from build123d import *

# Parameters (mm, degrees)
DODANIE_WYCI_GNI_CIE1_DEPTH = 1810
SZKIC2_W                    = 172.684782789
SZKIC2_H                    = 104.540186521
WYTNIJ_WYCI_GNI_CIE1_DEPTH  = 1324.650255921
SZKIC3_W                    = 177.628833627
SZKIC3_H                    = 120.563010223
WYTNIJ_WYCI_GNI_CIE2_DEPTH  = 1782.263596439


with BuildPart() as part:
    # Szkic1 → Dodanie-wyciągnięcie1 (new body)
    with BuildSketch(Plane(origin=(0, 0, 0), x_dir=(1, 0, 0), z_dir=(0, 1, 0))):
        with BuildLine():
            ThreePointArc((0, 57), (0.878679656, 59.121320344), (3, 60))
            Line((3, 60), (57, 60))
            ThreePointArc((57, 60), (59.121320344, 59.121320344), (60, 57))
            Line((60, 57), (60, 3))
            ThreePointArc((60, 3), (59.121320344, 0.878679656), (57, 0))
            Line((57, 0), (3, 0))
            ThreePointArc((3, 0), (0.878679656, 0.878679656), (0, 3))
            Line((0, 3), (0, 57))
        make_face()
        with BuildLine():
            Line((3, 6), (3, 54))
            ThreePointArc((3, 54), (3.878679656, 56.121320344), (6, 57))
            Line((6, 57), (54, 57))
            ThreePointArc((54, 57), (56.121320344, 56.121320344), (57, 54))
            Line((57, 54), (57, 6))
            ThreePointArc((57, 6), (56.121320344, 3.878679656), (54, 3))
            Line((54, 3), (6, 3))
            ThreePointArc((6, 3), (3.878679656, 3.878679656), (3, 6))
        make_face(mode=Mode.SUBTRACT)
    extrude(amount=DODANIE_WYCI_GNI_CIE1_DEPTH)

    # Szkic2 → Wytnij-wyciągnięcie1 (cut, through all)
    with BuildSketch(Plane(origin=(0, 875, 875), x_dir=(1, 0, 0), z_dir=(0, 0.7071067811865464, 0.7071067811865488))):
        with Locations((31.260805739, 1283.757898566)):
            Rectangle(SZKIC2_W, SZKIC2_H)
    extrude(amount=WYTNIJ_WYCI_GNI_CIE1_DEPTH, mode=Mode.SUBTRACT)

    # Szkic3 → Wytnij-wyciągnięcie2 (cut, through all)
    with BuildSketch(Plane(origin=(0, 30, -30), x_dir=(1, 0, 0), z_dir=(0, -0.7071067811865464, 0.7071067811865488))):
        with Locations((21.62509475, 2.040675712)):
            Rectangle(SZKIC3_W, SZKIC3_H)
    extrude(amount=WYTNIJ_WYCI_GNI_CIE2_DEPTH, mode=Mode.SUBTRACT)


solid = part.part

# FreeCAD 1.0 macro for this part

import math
import FreeCAD as App
import Part
import Sketcher


def add_polygon(sketch, points):
    """Adds a closed chain of lines whose ends are joined by coincident constraints."""
    first, n = sketch.GeometryCount, len(points)
    for a, b in zip(points, points[1:] + points[:1]):
        sketch.addGeometry(Part.LineSegment(App.Vector(*a, 0), App.Vector(*b, 0)), False)
    for i in range(n):
        sketch.addConstraint(Sketcher.Constraint("Coincident", first + i, 2, first + (i + 1) % n, 1))

doc = App.newDocument("Part")
body = doc.addObject("PartDesign::Body", "Body")

# Sketch on XZ plane
sketch1 = body.newObject("Sketcher::SketchObject", "Sketch")
sketch1.AttachmentSupport = (doc.getObject("XZ_Plane"), [""])
sketch1.MapMode = "FlatFace"
sketch1.addGeometry(Part.ArcOfCircle(Part.Circle(App.Vector(3, -57, 0), App.Vector(0, 0, 1), 3), math.radians(180), math.radians(270)), False)
sketch1.addGeometry(Part.LineSegment(App.Vector(0, -57, 0), App.Vector(0, -3, 0)), False)
sketch1.addGeometry(Part.ArcOfCircle(Part.Circle(App.Vector(3, -3, 0), App.Vector(0, 0, 1), 3), math.radians(90), math.radians(180)), False)
sketch1.addGeometry(Part.LineSegment(App.Vector(3, 0, 0), App.Vector(57, 0, 0)), False)
sketch1.addGeometry(Part.ArcOfCircle(Part.Circle(App.Vector(57, -3, 0), App.Vector(0, 0, 1), 3), math.radians(0), math.radians(90)), False)
sketch1.addGeometry(Part.LineSegment(App.Vector(60, -3, 0), App.Vector(60, -57, 0)), False)
sketch1.addGeometry(Part.ArcOfCircle(Part.Circle(App.Vector(57, -57, 0), App.Vector(0, 0, 1), 3), math.radians(-90), math.radians(0)), False)
sketch1.addGeometry(Part.LineSegment(App.Vector(57, -60, 0), App.Vector(3, -60, 0)), False)
sketch1.addGeometry(Part.LineSegment(App.Vector(3, -6, 0), App.Vector(3, -54, 0)), False)
sketch1.addGeometry(Part.ArcOfCircle(Part.Circle(App.Vector(6, -54, 0), App.Vector(0, 0, 1), 3), math.radians(180), math.radians(270)), False)
sketch1.addGeometry(Part.LineSegment(App.Vector(6, -57, 0), App.Vector(54, -57, 0)), False)
sketch1.addGeometry(Part.ArcOfCircle(Part.Circle(App.Vector(54, -54, 0), App.Vector(0, 0, 1), 3), math.radians(-90), math.radians(0)), False)
sketch1.addGeometry(Part.LineSegment(App.Vector(57, -54, 0), App.Vector(57, -6, 0)), False)
sketch1.addGeometry(Part.ArcOfCircle(Part.Circle(App.Vector(54, -6, 0), App.Vector(0, 0, 1), 3), math.radians(0), math.radians(90)), False)
sketch1.addGeometry(Part.LineSegment(App.Vector(54, -3, 0), App.Vector(6, -3, 0)), False)
sketch1.addGeometry(Part.ArcOfCircle(Part.Circle(App.Vector(6, -6, 0), App.Vector(0, 0, 1), 3), math.radians(90), math.radians(180)), False)
sketch1.addConstraint(Sketcher.Constraint("Tangent", 0, 1, 1, 1))
sketch1.addConstraint(Sketcher.Constraint("Tangent", 1, 2, 2, 2))
sketch1.addConstraint(Sketcher.Constraint("Tangent", 2, 1, 3, 1))
sketch1.addConstraint(Sketcher.Constraint("Tangent", 3, 2, 4, 2))
sketch1.addConstraint(Sketcher.Constraint("Tangent", 4, 1, 5, 1))
sketch1.addConstraint(Sketcher.Constraint("Tangent", 5, 2, 6, 2))
sketch1.addConstraint(Sketcher.Constraint("Tangent", 6, 1, 7, 1))
sketch1.addConstraint(Sketcher.Constraint("Tangent", 7, 2, 0, 2))
sketch1.addConstraint(Sketcher.Constraint("Tangent", 8, 2, 9, 1))
sketch1.addConstraint(Sketcher.Constraint("Tangent", 9, 2, 10, 1))
sketch1.addConstraint(Sketcher.Constraint("Tangent", 10, 2, 11, 1))
sketch1.addConstraint(Sketcher.Constraint("Tangent", 11, 2, 12, 1))
sketch1.addConstraint(Sketcher.Constraint("Tangent", 12, 2, 13, 1))
sketch1.addConstraint(Sketcher.Constraint("Tangent", 13, 2, 14, 1))
sketch1.addConstraint(Sketcher.Constraint("Tangent", 14, 2, 15, 1))
sketch1.addConstraint(Sketcher.Constraint("Tangent", 15, 2, 8, 1))
sketch1.addConstraint(Sketcher.Constraint("Vertical", 1))
sketch1.addConstraint(Sketcher.Constraint("Horizontal", 3))
sketch1.addConstraint(Sketcher.Constraint("Vertical", 5))
sketch1.addConstraint(Sketcher.Constraint("Horizontal", 7))
sketch1.addConstraint(Sketcher.Constraint("Vertical", 8))
sketch1.addConstraint(Sketcher.Constraint("Horizontal", 10))
sketch1.addConstraint(Sketcher.Constraint("Vertical", 12))
sketch1.addConstraint(Sketcher.Constraint("Horizontal", 14))
sketch1.addConstraint(Sketcher.Constraint("Equal", 0, 2))
sketch1.addConstraint(Sketcher.Constraint("Equal", 2, 4))
sketch1.addConstraint(Sketcher.Constraint("Equal", 4, 6))
sketch1.addConstraint(Sketcher.Constraint("Equal", 6, 9))
sketch1.addConstraint(Sketcher.Constraint("Equal", 9, 11))
sketch1.addConstraint(Sketcher.Constraint("Equal", 11, 13))
sketch1.addConstraint(Sketcher.Constraint("Equal", 13, 15))
sketch1.addConstraint(Sketcher.Constraint("PointOnObject", 0, 1, -2))
sketch1.addConstraint(Sketcher.Constraint("PointOnObject", 2, 1, -1))
sketch1.addConstraint(Sketcher.Constraint("Horizontal", 5, 2, 9, 2))
sketch1.addConstraint(Sketcher.Constraint("Horizontal", 4, 1, 13, 2))
sketch1.addConstraint(Sketcher.Constraint("Vertical", 7, 2, 8, 2))
sketch1.addConstraint(Sketcher.Constraint("Vertical", 6, 1, 11, 2))
sketch1.addConstraint(Sketcher.Constraint("Equal", 7, 1))
sketch1.addConstraint(Sketcher.Constraint("Radius", 0, 3.0))
sketch1.addConstraint(Sketcher.Constraint("DistanceX", 3, 1, 3, 2, 54.0))
pad1 = body.newObject("PartDesign::Pad", "Pad")
pad1.Profile = sketch1
pad1.Length = 1810
pad1.Reversed = True

# Sketch on an angled plane
sketch2 = body.newObject("Sketcher::SketchObject", "Sketch001")
sketch2.Placement = App.Placement(App.Vector(0, 875, 875), App.Rotation(App.Vector(1, 0, 0), App.Vector(0, 0.707106781, -0.707106781), App.Vector(0, 0.707106781, 0.707106781), "ZXY"))
add_polygon(sketch2, [(-55, 1336), (-55, 1231), (118, 1231), (118, 1336)])  # lines 0-3
sketch2.addConstraint(Sketcher.Constraint("Vertical", 0))
sketch2.addConstraint(Sketcher.Constraint("Horizontal", 1))
sketch2.addConstraint(Sketcher.Constraint("Vertical", 2))
sketch2.addConstraint(Sketcher.Constraint("Horizontal", 3))
sketch2.addConstraint(Sketcher.Constraint("DistanceX", 1, 1, 1, 2, 172.684783))
sketch2.addConstraint(Sketcher.Constraint("DistanceY", 0, 2, 0, 1, 104.540186))
sketch2.addConstraint(Sketcher.Constraint("DistanceY", -1, 1, 2, 2, 1336.027991))
sketch2.addConstraint(Sketcher.Constraint("DistanceX", 0, 2, -1, 1, 55.081586))
pocket1 = body.newObject("PartDesign::Pocket", "Pocket")
pocket1.Profile = sketch2
pocket1.Type = "ThroughAll"
pocket1.Reversed = True

# Sketch on an angled plane
sketch3 = body.newObject("Sketcher::SketchObject", "Sketch002")
sketch3.Placement = App.Placement(App.Vector(0, 30, -30), App.Rotation(App.Vector(1, 0, 0), App.Vector(0, 0.707106781, 0.707106781), App.Vector(0, -0.707106781, 0.707106781), "ZXY"))
add_polygon(sketch3, [(-67, 62), (-67, -58), (110, -58), (110, 62)])  # lines 0-3
sketch3.addConstraint(Sketcher.Constraint("Vertical", 0))
sketch3.addConstraint(Sketcher.Constraint("Horizontal", 1))
sketch3.addConstraint(Sketcher.Constraint("Vertical", 2))
sketch3.addConstraint(Sketcher.Constraint("Horizontal", 3))
sketch3.addConstraint(Sketcher.Constraint("DistanceY", 0, 2, 0, 1, 120.56301))
sketch3.addConstraint(Sketcher.Constraint("DistanceX", 1, 1, 1, 2, 177.628834))
sketch3.addConstraint(Sketcher.Constraint("DistanceY", 0, 2, -1, 1, 58.240829))
sketch3.addConstraint(Sketcher.Constraint("DistanceX", -1, 1, 1, 2, 110.439512))
pocket2 = body.newObject("PartDesign::Pocket", "Pocket001")
pocket2.Profile = sketch3
pocket2.Type = "ThroughAll"
pocket2.Reversed = True

doc.recompute()
